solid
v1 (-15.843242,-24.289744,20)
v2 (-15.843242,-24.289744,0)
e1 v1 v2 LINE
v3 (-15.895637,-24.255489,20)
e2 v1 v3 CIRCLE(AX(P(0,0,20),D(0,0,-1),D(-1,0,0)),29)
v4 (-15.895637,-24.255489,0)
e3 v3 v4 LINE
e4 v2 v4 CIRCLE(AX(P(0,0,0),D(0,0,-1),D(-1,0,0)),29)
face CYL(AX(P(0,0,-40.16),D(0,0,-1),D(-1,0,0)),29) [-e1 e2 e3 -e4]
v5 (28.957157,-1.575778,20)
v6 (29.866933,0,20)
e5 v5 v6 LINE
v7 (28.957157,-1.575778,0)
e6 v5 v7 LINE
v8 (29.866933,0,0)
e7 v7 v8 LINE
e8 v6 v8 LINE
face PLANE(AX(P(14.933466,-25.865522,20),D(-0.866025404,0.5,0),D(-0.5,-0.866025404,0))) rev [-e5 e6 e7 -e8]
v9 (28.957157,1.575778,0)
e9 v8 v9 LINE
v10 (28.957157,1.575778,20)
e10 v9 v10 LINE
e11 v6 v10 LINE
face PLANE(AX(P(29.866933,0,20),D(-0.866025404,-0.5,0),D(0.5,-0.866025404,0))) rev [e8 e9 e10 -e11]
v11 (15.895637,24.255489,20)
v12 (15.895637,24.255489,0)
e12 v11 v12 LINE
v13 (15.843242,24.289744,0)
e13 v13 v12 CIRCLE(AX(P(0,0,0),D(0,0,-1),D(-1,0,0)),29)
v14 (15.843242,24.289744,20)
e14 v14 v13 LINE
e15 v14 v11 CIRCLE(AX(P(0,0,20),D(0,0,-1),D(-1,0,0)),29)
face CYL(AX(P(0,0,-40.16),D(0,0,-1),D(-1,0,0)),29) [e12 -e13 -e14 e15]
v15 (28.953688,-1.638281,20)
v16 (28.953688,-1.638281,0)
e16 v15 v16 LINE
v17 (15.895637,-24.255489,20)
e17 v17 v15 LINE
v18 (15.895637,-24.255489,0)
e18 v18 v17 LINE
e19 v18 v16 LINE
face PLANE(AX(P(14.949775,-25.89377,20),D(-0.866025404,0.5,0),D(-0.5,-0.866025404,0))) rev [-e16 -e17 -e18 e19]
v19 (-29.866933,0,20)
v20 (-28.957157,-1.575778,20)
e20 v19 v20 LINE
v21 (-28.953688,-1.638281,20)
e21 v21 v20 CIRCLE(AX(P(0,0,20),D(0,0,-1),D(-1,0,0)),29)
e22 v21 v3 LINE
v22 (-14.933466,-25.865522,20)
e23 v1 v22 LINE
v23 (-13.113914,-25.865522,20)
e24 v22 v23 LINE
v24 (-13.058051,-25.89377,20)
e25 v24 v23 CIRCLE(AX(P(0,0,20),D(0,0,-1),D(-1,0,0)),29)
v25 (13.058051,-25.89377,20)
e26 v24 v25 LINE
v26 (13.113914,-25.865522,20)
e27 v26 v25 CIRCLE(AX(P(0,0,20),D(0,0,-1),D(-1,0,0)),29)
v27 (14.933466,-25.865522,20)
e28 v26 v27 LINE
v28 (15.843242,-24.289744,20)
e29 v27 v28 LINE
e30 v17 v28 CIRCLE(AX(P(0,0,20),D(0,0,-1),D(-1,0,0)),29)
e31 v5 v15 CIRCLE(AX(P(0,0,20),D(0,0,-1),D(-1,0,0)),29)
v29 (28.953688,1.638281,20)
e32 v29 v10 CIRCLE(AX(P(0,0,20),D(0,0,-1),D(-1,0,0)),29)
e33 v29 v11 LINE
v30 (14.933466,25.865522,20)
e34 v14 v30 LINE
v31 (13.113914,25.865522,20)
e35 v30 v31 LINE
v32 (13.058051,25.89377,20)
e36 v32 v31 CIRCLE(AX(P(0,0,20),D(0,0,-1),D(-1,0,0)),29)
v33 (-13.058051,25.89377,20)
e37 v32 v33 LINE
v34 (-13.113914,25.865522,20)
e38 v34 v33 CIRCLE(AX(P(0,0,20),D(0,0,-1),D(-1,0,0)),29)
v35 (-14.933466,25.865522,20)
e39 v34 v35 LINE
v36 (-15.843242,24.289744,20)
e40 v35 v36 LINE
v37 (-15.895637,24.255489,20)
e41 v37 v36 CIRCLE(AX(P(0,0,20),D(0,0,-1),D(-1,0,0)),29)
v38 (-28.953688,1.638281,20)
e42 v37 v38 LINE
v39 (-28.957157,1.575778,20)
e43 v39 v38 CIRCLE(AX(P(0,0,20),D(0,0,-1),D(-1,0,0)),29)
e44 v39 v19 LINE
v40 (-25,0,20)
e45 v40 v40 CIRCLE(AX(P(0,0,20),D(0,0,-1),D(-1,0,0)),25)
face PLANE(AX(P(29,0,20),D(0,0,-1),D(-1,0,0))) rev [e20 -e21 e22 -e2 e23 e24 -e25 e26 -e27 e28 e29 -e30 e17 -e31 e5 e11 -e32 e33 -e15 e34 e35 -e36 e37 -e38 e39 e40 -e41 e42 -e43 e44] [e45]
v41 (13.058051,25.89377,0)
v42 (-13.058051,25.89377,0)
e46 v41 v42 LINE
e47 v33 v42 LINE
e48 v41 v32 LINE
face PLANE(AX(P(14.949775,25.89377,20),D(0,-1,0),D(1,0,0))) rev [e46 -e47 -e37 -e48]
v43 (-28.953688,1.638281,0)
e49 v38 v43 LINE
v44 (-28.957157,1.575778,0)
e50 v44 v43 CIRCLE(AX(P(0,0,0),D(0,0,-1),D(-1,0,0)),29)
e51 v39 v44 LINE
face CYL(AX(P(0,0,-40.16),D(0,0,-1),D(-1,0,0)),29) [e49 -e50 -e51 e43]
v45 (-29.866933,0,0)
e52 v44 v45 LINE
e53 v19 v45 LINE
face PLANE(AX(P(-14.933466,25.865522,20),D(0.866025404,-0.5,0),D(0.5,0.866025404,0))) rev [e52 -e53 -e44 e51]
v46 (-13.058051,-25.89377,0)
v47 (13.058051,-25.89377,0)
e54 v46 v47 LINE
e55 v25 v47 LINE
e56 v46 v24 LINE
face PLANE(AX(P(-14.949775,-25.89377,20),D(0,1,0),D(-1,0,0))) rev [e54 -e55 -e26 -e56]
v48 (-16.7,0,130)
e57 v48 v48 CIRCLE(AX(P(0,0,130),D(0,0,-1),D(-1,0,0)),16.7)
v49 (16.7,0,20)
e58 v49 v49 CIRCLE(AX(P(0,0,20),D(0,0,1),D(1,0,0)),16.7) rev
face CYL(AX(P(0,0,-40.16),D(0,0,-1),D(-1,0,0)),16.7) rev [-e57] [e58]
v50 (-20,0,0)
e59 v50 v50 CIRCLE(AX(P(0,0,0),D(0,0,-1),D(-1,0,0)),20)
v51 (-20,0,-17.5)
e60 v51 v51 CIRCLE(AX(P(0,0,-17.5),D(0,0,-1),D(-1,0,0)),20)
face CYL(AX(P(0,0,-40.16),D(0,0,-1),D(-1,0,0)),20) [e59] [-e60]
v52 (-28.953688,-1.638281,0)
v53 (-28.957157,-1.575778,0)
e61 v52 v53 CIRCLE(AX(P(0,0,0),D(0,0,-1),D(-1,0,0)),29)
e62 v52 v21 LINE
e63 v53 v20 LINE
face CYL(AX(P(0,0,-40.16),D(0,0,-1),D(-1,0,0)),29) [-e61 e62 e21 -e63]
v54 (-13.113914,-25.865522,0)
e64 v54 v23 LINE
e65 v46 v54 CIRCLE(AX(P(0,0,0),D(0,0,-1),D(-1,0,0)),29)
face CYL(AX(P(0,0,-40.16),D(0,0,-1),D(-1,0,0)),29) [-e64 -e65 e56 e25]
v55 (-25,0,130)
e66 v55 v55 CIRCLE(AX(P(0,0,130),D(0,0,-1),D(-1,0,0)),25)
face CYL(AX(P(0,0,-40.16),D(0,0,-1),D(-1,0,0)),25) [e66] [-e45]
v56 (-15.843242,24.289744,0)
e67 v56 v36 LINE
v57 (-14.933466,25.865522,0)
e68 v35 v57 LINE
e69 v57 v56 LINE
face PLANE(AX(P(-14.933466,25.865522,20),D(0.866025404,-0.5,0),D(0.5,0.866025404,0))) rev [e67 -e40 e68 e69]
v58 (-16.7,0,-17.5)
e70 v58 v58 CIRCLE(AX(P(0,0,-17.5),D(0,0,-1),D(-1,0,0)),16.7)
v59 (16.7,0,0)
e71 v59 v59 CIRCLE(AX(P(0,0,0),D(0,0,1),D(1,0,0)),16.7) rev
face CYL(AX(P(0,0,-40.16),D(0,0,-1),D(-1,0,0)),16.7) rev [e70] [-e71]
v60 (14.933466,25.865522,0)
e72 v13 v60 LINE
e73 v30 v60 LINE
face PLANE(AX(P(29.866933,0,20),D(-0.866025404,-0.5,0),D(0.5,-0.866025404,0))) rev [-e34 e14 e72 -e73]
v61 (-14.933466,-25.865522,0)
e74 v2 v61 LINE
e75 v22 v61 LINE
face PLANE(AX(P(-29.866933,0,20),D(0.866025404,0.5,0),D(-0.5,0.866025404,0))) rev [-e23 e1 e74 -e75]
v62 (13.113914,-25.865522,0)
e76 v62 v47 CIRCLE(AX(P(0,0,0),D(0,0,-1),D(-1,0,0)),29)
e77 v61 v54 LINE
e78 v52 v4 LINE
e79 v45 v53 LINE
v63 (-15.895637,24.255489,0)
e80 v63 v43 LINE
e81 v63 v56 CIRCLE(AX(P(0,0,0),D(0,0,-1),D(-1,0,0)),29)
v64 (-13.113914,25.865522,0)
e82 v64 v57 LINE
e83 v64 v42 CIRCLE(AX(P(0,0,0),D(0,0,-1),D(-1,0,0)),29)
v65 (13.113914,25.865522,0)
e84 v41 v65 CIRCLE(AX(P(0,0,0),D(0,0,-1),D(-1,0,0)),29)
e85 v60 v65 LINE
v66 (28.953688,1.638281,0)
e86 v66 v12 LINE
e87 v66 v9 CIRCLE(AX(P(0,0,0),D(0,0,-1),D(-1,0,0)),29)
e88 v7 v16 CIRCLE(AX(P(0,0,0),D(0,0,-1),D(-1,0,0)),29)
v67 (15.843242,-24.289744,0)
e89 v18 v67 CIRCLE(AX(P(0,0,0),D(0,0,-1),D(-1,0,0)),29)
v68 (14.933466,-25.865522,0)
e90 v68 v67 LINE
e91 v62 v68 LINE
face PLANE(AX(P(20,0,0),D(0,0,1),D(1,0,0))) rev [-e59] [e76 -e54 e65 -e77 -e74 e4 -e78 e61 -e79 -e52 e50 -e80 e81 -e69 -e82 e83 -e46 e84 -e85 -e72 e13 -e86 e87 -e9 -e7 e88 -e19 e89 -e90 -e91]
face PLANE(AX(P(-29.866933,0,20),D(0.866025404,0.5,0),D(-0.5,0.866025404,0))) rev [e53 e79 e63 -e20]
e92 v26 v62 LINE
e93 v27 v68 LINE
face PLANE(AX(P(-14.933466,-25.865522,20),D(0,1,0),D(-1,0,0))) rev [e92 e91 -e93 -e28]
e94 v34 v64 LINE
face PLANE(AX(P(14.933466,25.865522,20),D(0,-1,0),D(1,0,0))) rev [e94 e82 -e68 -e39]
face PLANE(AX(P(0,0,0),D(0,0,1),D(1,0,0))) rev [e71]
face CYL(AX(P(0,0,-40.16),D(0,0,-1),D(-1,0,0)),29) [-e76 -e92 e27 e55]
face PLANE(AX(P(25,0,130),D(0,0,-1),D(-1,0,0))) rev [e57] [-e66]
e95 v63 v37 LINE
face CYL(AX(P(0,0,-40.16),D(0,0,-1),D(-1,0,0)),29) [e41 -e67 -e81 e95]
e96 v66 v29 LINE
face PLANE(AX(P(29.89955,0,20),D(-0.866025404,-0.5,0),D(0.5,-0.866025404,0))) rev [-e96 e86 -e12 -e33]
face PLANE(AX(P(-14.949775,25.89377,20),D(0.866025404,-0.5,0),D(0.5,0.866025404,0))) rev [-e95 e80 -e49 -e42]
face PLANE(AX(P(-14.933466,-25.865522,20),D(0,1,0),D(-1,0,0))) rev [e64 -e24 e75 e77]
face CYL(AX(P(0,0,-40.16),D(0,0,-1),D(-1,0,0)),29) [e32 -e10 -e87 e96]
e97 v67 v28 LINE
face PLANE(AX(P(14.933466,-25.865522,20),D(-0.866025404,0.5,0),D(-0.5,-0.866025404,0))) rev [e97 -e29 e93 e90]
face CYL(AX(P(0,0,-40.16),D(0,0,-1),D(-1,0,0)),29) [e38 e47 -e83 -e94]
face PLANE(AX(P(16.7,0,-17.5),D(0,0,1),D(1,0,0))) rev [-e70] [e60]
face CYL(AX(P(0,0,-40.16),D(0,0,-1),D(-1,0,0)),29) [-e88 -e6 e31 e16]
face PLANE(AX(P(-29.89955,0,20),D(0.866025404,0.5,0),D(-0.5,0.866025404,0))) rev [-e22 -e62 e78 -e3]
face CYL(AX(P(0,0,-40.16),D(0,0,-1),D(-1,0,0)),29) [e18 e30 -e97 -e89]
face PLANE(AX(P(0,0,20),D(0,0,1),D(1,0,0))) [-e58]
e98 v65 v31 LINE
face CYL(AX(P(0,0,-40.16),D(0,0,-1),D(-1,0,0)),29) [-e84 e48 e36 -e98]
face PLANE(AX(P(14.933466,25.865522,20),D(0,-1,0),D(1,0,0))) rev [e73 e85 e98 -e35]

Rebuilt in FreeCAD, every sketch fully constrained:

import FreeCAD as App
import Part
import Sketcher
Q = App.Units.Quantity

doc = App.newDocument("Part")
body = doc.addObject("PartDesign::Body", "Body")

# Sketch on XZ plane
sketch1 = body.newObject("Sketcher::SketchObject", "Sketch")
sketch1.AttachmentSupport = (doc.getObject("XZ_Plane"), [""])
sketch1.MapMode = "FlatFace"
sketch1.addGeometry(Part.LineSegment(App.Vector(16.7, -17.5, 0), App.Vector(16.7, 130, 0)), False)
sketch1.addGeometry(Part.LineSegment(App.Vector(16.7, 130, 0), App.Vector(25, 130, 0)), False)
sketch1.addGeometry(Part.LineSegment(App.Vector(25, 130, 0), App.Vector(25, 20, 0)), False)
sketch1.addGeometry(Part.LineSegment(App.Vector(25, 20, 0), App.Vector(29, 20, 0)), False)
sketch1.addGeometry(Part.LineSegment(App.Vector(29, 20, 0), App.Vector(29, 0, 0)), False)
sketch1.addGeometry(Part.LineSegment(App.Vector(29, 0, 0), App.Vector(20, 0, 0)), False)
sketch1.addGeometry(Part.LineSegment(App.Vector(20, 0, 0), App.Vector(20, -17.5, 0)), False)
sketch1.addGeometry(Part.LineSegment(App.Vector(20, -17.5, 0), App.Vector(16.7, -17.5, 0)), False)
sketch1.addConstraint(Sketcher.Constraint("Coincident", 0, 2, 1, 1))
sketch1.addConstraint(Sketcher.Constraint("Coincident", 1, 2, 2, 1))
sketch1.addConstraint(Sketcher.Constraint("Coincident", 2, 2, 3, 1))
sketch1.addConstraint(Sketcher.Constraint("Coincident", 3, 2, 4, 1))
sketch1.addConstraint(Sketcher.Constraint("Coincident", 4, 2, 5, 1))
sketch1.addConstraint(Sketcher.Constraint("Coincident", 5, 2, 6, 1))
sketch1.addConstraint(Sketcher.Constraint("Coincident", 6, 2, 7, 1))
sketch1.addConstraint(Sketcher.Constraint("Coincident", 7, 2, 0, 1))
sketch1.addConstraint(Sketcher.Constraint("Vertical", 0))
sketch1.addConstraint(Sketcher.Constraint("Horizontal", 1))
sketch1.addConstraint(Sketcher.Constraint("Vertical", 2))
sketch1.addConstraint(Sketcher.Constraint("Horizontal", 3))
sketch1.addConstraint(Sketcher.Constraint("Vertical", 4))
sketch1.addConstraint(Sketcher.Constraint("Horizontal", 5))
sketch1.addConstraint(Sketcher.Constraint("Vertical", 6))
sketch1.addConstraint(Sketcher.Constraint("Horizontal", 7))
sketch1.addConstraint(Sketcher.Constraint("PointOnObject", 4, 2, -1))
sketch1.addConstraint(Sketcher.Constraint("DistanceX", 3, 1, 3, 2, Q("4 mm")))
sketch1.addConstraint(Sketcher.Constraint("DistanceX", 5, 2, 5, 1, Q("9 mm")))
sketch1.addConstraint(Sketcher.Constraint("DistanceY", 2, 2, 2, 1, Q("110 mm")))
sketch1.addConstraint(Sketcher.Constraint("DistanceY", 4, 2, 4, 1, Q("20 mm")))
sketch1.addConstraint(Sketcher.Constraint("DistanceX", 1, 1, 1, 2, Q("8.3 mm")))
sketch1.addConstraint(Sketcher.Constraint("DistanceY", 0, 1, 0, 2, Q("147.5 mm")))
sketch1.addConstraint(Sketcher.Constraint("DistanceX", -1, 1, 1, 2, Q("25 mm")))
revolution = body.newObject("PartDesign::Revolution", "Revolution")
revolution.Profile = sketch1
revolution.ReferenceAxis = (sketch1, ["V_Axis"])
revolution.Angle = 360

# Sketch on XY plane
sketch2 = body.newObject("Sketcher::SketchObject", "Sketch001")
sketch2.AttachmentSupport = (doc.getObject("XY_Plane"), [""])
sketch2.MapMode = "FlatFace"
sketch2.addGeometry(Part.LineSegment(App.Vector(30, 0, 0), App.Vector(15, 26, 0)), False)
sketch2.addGeometry(Part.LineSegment(App.Vector(15, 26, 0), App.Vector(-15, 26, 0)), False)
sketch2.addGeometry(Part.LineSegment(App.Vector(-15, 26, 0), App.Vector(-30, 0, 0)), False)
sketch2.addGeometry(Part.LineSegment(App.Vector(-30, 0, 0), App.Vector(-15, -26, 0)), False)
sketch2.addGeometry(Part.LineSegment(App.Vector(-15, -26, 0), App.Vector(15, -26, 0)), False)
sketch2.addGeometry(Part.LineSegment(App.Vector(15, -26, 0), App.Vector(30, 0, 0)), False)
sketch2.addConstraint(Sketcher.Constraint("Coincident", 0, 2, 1, 1))
sketch2.addConstraint(Sketcher.Constraint("Coincident", 1, 2, 2, 1))
sketch2.addConstraint(Sketcher.Constraint("Coincident", 2, 2, 3, 1))
sketch2.addConstraint(Sketcher.Constraint("Coincident", 3, 2, 4, 1))
sketch2.addConstraint(Sketcher.Constraint("Coincident", 4, 2, 5, 1))
sketch2.addConstraint(Sketcher.Constraint("Coincident", 5, 2, 0, 1))
sketch2.addConstraint(Sketcher.Constraint("Horizontal", 1))
sketch2.addConstraint(Sketcher.Constraint("Horizontal", 4))
sketch2.addConstraint(Sketcher.Constraint("Symmetric", 0, 2, 3, 2, -1, 1))
sketch2.addConstraint(Sketcher.Constraint("Symmetric", 2, 2, 5, 2, -1, 1))
sketch2.addConstraint(Sketcher.Constraint("PointOnObject", 2, 2, -1))
sketch2.addConstraint(Sketcher.Constraint("Parallel", 2, 5))
sketch2.addConstraint(Sketcher.Constraint("Vertical", 1, 2, 3, 2))
sketch2.addConstraint(Sketcher.Constraint("Angle", 0, Q("120 deg")))
sketch2.addConstraint(Sketcher.Constraint("DistanceX", 2, 2, 0, 2, Q("44.800399 mm")))
sketch2.addConstraint(Sketcher.Constraint("DistanceX", 1, 2, 1, 1, Q("29.866933 mm")))
pad1 = body.newObject("PartDesign::Pad", "Pad")
pad1.Profile = sketch2
pad1.Length = 20

# Sketch on XY plane
sketch3 = body.newObject("Sketcher::SketchObject", "Sketch002")
sketch3.AttachmentSupport = (doc.getObject("XY_Plane"), [""])
sketch3.MapMode = "FlatFace"
sketch3.addGeometry(Part.LineSegment(App.Vector(-48, 47, 0), App.Vector(-48, -47, 0)), False)
sketch3.addGeometry(Part.LineSegment(App.Vector(-48, -47, 0), App.Vector(48, -47, 0)), False)
sketch3.addGeometry(Part.LineSegment(App.Vector(48, -47, 0), App.Vector(48, 47, 0)), False)
sketch3.addGeometry(Part.LineSegment(App.Vector(48, 47, 0), App.Vector(-48, 47, 0)), False)
sketch3.addGeometry(Part.LineSegment(App.Vector(15, 26, 0), App.Vector(30, 0, 0)), False)
sketch3.addGeometry(Part.LineSegment(App.Vector(30, 0, 0), App.Vector(15, -26, 0)), False)
sketch3.addGeometry(Part.LineSegment(App.Vector(15, -26, 0), App.Vector(-15, -26, 0)), False)
sketch3.addGeometry(Part.LineSegment(App.Vector(-15, -26, 0), App.Vector(-30, 0, 0)), False)
sketch3.addGeometry(Part.LineSegment(App.Vector(-30, 0, 0), App.Vector(-15, 26, 0)), False)
sketch3.addGeometry(Part.LineSegment(App.Vector(-15, 26, 0), App.Vector(15, 26, 0)), False)
sketch3.addConstraint(Sketcher.Constraint("Coincident", 0, 2, 1, 1))
sketch3.addConstraint(Sketcher.Constraint("Coincident", 1, 2, 2, 1))
sketch3.addConstraint(Sketcher.Constraint("Coincident", 2, 2, 3, 1))
sketch3.addConstraint(Sketcher.Constraint("Coincident", 3, 2, 0, 1))
sketch3.addConstraint(Sketcher.Constraint("Coincident", 4, 2, 5, 1))
sketch3.addConstraint(Sketcher.Constraint("Coincident", 5, 2, 6, 1))
sketch3.addConstraint(Sketcher.Constraint("Coincident", 6, 2, 7, 1))
sketch3.addConstraint(Sketcher.Constraint("Coincident", 7, 2, 8, 1))
sketch3.addConstraint(Sketcher.Constraint("Coincident", 8, 2, 9, 1))
sketch3.addConstraint(Sketcher.Constraint("Coincident", 9, 2, 4, 1))
sketch3.addConstraint(Sketcher.Constraint("Vertical", 0))
sketch3.addConstraint(Sketcher.Constraint("Horizontal", 1))
sketch3.addConstraint(Sketcher.Constraint("Vertical", 2))
sketch3.addConstraint(Sketcher.Constraint("Horizontal", 3))
sketch3.addConstraint(Sketcher.Constraint("Horizontal", 6))
sketch3.addConstraint(Sketcher.Constraint("Horizontal", 9))
sketch3.addConstraint(Sketcher.Constraint("Symmetric", 0, 2, 2, 2, -1, 1))
sketch3.addConstraint(Sketcher.Constraint("Symmetric", 4, 2, 7, 2, -1, 1))
sketch3.addConstraint(Sketcher.Constraint("Symmetric", 5, 2, 8, 2, -1, 1))
sketch3.addConstraint(Sketcher.Constraint("PointOnObject", 4, 2, -1))
sketch3.addConstraint(Sketcher.Constraint("Parallel", 4, 7))
sketch3.addConstraint(Sketcher.Constraint("Vertical", 6, 2, 8, 2))
sketch3.addConstraint(Sketcher.Constraint("Angle", 4, Q("-60 deg")))
sketch3.addConstraint(Sketcher.Constraint("DistanceX", 1, 1, 1, 2, Q("95.61 mm")))
sketch3.addConstraint(Sketcher.Constraint("DistanceY", 0, 2, 0, 1, Q("93.876 mm")))
sketch3.addConstraint(Sketcher.Constraint("DistanceX", 6, 2, 6, 1, Q("29.89955 mm")))
sketch3.addConstraint(Sketcher.Constraint("DistanceX", 7, 2, 4, 2, Q("59.799099 mm")))
pocket1 = body.newObject("PartDesign::Pocket", "Pocket")
pocket1.Profile = sketch3
pocket1.Length = 20
pocket1.Reversed = True

doc.recompute()
